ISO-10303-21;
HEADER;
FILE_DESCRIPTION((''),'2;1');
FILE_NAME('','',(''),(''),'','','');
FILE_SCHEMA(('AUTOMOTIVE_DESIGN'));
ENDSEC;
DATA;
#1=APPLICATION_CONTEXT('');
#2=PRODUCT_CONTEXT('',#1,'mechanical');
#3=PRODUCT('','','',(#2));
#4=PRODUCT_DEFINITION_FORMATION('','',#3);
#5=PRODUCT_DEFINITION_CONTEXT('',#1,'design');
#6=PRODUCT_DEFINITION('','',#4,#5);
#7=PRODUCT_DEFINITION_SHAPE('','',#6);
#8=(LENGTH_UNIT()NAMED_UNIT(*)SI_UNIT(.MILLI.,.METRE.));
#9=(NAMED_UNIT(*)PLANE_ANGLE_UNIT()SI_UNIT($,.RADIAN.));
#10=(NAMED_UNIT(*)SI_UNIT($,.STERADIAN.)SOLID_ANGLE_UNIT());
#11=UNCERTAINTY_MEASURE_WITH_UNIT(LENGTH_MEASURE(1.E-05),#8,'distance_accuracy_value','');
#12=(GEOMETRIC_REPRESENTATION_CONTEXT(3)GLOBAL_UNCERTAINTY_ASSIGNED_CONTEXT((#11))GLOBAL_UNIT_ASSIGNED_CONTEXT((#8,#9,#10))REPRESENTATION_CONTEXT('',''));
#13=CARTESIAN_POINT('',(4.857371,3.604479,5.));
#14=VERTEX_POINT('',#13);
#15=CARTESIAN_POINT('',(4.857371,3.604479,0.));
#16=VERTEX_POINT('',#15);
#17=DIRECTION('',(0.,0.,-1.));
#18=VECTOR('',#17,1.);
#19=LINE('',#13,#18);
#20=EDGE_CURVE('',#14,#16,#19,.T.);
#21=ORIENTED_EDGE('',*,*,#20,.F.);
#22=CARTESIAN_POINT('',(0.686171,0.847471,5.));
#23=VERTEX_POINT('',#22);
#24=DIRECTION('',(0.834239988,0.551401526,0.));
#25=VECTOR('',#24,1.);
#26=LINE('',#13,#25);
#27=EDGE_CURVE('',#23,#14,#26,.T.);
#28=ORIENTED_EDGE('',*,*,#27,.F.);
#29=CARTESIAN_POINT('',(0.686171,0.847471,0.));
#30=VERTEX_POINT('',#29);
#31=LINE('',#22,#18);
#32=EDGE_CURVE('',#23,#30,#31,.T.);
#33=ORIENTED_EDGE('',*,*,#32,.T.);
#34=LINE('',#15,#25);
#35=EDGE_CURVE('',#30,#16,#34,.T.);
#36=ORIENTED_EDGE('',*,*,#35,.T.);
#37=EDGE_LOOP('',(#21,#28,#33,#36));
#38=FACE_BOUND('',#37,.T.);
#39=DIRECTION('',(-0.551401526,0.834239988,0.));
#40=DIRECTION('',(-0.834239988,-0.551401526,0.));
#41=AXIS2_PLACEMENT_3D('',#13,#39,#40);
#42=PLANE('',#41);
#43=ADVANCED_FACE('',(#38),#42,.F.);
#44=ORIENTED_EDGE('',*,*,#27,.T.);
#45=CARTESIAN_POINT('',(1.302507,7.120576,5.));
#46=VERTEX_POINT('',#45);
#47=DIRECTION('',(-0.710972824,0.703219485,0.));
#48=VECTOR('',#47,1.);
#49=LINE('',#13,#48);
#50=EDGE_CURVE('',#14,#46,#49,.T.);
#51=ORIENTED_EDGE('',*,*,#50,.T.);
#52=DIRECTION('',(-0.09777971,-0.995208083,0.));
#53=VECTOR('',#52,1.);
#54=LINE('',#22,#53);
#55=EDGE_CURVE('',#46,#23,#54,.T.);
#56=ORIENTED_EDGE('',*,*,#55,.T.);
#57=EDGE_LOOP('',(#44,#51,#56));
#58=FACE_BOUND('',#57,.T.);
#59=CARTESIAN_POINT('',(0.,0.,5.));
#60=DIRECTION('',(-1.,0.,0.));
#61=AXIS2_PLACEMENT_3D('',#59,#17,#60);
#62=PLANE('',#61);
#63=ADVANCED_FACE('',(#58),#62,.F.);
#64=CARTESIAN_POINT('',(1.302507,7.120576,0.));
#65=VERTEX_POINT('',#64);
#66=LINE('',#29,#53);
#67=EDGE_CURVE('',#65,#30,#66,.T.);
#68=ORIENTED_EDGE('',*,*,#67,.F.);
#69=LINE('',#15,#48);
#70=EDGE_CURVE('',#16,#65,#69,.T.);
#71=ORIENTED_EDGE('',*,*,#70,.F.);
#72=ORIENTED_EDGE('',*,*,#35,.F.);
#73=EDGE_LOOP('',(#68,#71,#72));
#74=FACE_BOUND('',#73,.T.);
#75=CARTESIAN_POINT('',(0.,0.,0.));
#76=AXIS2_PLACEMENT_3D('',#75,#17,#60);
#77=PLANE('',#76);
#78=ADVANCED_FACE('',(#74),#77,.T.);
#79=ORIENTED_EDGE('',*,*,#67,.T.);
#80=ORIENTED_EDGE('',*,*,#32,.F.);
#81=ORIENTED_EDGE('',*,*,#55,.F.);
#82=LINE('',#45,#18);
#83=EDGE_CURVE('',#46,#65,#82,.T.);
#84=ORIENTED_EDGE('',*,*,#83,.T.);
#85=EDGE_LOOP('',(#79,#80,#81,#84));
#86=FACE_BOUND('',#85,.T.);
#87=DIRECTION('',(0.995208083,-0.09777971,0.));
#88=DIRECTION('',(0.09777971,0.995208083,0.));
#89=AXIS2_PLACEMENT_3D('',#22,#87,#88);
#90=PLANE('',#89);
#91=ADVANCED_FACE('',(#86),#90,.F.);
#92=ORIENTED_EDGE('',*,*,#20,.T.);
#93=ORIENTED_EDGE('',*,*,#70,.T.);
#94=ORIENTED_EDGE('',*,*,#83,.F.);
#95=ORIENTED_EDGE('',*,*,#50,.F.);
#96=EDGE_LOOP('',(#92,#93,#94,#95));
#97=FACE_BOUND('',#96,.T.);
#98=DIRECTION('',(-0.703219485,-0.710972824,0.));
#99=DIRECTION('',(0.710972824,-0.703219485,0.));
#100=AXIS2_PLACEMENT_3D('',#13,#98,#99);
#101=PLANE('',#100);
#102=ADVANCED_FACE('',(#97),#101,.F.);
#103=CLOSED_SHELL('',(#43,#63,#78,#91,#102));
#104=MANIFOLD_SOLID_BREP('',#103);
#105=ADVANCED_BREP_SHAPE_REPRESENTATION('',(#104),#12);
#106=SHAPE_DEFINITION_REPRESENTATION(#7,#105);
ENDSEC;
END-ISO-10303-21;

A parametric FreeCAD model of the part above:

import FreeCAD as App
import Part
import Sketcher

V = App.Vector
Q = App.Units.Quantity


def add_polygon(sketch, points):
    """Adds a closed chain of lines whose ends are joined by coincident constraints."""
    first, n = sketch.GeometryCount, len(points)
    for a, b in zip(points, points[1:] + points[:1]):
        sketch.addGeometry(Part.LineSegment(App.Vector(*a, 0), App.Vector(*b, 0)), False)
    for i in range(n):
        sketch.addConstraint(Sketcher.Constraint("Coincident", first + i, 2, first + (i + 1) % n, 1))

doc = App.newDocument("Part")
body = doc.addObject("PartDesign::Body", "Body")

# Sketch on XY plane
sketch1 = body.newObject("Sketcher::SketchObject", "Sketch")
sketch1.AttachmentSupport = (doc.getObject("XY_Plane"), [""])
sketch1.MapMode = "FlatFace"
add_polygon(sketch1, [(4.9, 3.6), (1.3, 7.1), (0.7, 0.8)])  # lines 0-2
sketch1.addConstraint(Sketcher.Constraint("Equal", 0, 2))
sketch1.addConstraint(Sketcher.Constraint("Distance", 0, Q("5 mm")))
sketch1.addConstraint(Sketcher.Constraint("DistanceX", 1, 2, 2, 2, Q("4.1712 mm")))
sketch1.addConstraint(Sketcher.Constraint("Distance", 1, Q("6.30331 mm")))
sketch1.addConstraint(Sketcher.Constraint("DistanceX", -1, 1, 1, 2, Q("0.686171 mm")))
sketch1.addConstraint(Sketcher.Constraint("DistanceY", -1, 1, 1, 2, Q("0.847471 mm")))
pad1 = body.newObject("PartDesign::Pad", "Pad")
pad1.Profile = sketch1
pad1.Length = 5

doc.recompute()
